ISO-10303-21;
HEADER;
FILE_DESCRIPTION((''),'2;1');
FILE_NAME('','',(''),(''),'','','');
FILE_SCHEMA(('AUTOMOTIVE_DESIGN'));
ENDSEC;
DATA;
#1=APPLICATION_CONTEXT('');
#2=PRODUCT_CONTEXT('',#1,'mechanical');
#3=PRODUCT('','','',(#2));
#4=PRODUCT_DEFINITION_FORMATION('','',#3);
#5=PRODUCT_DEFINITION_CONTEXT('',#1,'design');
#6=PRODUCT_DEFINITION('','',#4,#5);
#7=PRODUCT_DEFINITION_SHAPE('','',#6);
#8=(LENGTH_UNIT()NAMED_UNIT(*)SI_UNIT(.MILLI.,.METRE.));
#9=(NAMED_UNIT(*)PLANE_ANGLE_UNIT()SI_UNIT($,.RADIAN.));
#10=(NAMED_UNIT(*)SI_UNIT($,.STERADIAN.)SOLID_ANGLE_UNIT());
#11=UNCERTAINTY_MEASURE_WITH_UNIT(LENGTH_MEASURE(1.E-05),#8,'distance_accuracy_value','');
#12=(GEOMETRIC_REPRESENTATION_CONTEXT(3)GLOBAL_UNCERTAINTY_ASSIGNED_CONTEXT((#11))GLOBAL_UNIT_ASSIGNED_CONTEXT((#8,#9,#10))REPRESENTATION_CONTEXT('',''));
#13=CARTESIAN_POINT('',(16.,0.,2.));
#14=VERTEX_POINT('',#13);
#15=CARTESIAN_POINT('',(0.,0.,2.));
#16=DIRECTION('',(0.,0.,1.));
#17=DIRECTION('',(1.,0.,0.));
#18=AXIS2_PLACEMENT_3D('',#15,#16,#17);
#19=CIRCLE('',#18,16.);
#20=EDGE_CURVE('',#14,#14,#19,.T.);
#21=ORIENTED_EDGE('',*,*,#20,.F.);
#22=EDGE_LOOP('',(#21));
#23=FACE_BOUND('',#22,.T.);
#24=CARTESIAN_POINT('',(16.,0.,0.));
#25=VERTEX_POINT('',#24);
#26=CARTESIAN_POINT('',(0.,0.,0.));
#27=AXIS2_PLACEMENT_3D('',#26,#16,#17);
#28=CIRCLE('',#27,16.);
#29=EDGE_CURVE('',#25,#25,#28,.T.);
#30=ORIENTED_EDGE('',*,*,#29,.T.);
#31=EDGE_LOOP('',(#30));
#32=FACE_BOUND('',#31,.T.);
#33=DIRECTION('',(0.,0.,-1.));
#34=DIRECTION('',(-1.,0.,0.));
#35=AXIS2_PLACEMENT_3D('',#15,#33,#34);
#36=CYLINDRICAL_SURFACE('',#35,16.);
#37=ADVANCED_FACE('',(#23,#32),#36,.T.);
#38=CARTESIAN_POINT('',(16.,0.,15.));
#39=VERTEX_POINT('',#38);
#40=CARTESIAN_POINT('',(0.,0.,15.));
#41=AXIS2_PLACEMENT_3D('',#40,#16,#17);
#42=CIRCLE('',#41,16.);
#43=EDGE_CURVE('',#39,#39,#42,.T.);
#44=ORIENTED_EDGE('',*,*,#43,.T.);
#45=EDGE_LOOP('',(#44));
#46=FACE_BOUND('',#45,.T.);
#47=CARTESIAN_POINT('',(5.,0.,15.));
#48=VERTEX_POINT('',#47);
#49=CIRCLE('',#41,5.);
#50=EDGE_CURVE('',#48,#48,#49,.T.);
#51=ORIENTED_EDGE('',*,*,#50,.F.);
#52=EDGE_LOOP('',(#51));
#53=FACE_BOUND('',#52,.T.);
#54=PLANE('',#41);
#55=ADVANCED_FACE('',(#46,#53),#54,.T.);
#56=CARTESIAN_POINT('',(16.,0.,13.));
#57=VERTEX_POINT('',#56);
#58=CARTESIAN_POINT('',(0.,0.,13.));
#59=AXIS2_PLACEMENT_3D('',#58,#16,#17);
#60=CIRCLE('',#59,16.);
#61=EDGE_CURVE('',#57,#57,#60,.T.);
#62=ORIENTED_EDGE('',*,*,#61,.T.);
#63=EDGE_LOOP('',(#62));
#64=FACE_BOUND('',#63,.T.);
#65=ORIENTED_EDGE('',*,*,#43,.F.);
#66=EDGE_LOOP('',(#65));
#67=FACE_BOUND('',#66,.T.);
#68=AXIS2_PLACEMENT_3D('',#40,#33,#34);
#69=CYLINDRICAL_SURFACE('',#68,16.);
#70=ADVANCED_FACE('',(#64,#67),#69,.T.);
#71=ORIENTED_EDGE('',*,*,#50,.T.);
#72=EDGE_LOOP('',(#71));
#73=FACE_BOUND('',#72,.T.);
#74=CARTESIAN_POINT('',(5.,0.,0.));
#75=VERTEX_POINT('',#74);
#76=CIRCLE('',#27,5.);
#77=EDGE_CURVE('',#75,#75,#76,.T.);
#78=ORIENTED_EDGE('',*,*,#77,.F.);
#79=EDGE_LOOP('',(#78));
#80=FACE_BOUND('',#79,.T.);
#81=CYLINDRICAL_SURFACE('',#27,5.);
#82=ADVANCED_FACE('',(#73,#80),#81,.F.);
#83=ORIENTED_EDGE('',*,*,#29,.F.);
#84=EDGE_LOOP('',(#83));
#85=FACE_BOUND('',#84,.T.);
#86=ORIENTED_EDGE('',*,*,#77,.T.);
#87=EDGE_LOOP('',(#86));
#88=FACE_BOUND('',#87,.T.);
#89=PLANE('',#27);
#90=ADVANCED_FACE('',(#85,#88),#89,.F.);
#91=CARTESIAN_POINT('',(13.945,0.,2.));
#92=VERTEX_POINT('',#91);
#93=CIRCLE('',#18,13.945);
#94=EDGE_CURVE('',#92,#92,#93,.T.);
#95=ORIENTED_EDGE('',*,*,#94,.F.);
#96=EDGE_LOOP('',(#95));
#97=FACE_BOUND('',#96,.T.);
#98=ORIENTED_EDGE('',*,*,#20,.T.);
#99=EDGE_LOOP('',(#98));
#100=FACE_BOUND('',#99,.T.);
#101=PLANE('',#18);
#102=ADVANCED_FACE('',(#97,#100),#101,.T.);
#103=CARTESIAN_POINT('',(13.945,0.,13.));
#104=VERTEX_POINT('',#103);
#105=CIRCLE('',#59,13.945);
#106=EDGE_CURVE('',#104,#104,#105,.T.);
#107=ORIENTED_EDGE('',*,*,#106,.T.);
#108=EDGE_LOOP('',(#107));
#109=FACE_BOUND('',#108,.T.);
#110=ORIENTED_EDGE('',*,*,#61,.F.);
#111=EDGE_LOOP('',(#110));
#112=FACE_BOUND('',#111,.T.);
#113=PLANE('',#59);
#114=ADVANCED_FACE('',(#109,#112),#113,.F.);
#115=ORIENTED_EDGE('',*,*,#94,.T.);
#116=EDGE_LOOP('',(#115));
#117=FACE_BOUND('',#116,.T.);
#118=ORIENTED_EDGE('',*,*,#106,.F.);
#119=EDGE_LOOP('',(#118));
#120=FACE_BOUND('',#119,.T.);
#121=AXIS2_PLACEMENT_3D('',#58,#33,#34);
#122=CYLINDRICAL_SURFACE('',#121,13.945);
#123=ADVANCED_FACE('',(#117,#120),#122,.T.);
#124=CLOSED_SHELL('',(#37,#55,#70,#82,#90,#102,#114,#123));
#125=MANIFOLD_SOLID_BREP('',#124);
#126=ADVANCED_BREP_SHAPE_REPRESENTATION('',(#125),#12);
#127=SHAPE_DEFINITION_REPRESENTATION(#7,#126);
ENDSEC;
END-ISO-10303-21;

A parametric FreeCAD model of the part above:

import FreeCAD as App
import Part
import Sketcher

V = App.Vector
Q = App.Units.Quantity

doc = App.newDocument("Part")
body = doc.addObject("PartDesign::Body", "Body")

sketch1 = body.newObject("Sketcher::SketchObject", "Sketch")
sketch1.AttachmentSupport = (doc.getObject("XY_Plane"), [""])
sketch1.MapMode = "FlatFace"
sketch1.addGeometry(Part.Circle(V(0, 0, 0), V(0, 0, 1), 16), False)
sketch1.addConstraint([
    Sketcher.Constraint("Coincident", 0, 3, -1, 1),
    Sketcher.Constraint("Diameter", 0, Q("32 mm")),
])
pad1 = body.newObject("PartDesign::Pad", "Pad")
pad1.Profile = sketch1
pad1.Length = 2

sketch2 = body.newObject("Sketcher::SketchObject", "Sketch001")
sketch2.AttachmentSupport = (doc.getObject("XY_Plane"), [""])
sketch2.MapMode = "FlatFace"
sketch2.AttachmentOffset = App.Placement(V(0, 0, 2), App.Rotation())
sketch2.addGeometry(Part.Circle(V(0, 0, 0), V(0, 0, 1), 14), False)
sketch2.addConstraint([
    Sketcher.Constraint("Coincident", 0, 3, -1, 1),
    Sketcher.Constraint("Diameter", 0, Q("27.89 mm")),
])
pad2 = body.newObject("PartDesign::Pad", "Pad001")
pad2.Profile = sketch2
pad2.Length = 11

sketch3 = body.newObject("Sketcher::SketchObject", "Sketch002")
sketch3.AttachmentSupport = (doc.getObject("XY_Plane"), [""])
sketch3.MapMode = "FlatFace"
sketch3.AttachmentOffset = App.Placement(V(0, 0, 13), App.Rotation())
sketch3.addGeometry(Part.Circle(V(0, 0, 0), V(0, 0, 1), 16), False)
sketch3.addConstraint([
    Sketcher.Constraint("Coincident", 0, 3, -1, 1),
    Sketcher.Constraint("Diameter", 0, Q("32 mm")),
])
pad3 = body.newObject("PartDesign::Pad", "Pad002")
pad3.Profile = sketch3
pad3.Length = 2

sketch4 = body.newObject("Sketcher::SketchObject", "Sketch003")
sketch4.AttachmentSupport = (doc.getObject("XY_Plane"), [""])
sketch4.MapMode = "FlatFace"
sketch4.AttachmentOffset = App.Placement(V(0, 0, 15), App.Rotation())
sketch4.addGeometry(Part.Circle(V(0, 0, 0), V(0, 0, 1), 5), False)
sketch4.addConstraint([
    Sketcher.Constraint("Coincident", 0, 3, -1, 1),
    Sketcher.Constraint("Diameter", 0, Q("10 mm")),
])
pocket1 = body.newObject("PartDesign::Pocket", "Pocket")
pocket1.Profile = sketch4
pocket1.Length = 15

doc.recompute()
